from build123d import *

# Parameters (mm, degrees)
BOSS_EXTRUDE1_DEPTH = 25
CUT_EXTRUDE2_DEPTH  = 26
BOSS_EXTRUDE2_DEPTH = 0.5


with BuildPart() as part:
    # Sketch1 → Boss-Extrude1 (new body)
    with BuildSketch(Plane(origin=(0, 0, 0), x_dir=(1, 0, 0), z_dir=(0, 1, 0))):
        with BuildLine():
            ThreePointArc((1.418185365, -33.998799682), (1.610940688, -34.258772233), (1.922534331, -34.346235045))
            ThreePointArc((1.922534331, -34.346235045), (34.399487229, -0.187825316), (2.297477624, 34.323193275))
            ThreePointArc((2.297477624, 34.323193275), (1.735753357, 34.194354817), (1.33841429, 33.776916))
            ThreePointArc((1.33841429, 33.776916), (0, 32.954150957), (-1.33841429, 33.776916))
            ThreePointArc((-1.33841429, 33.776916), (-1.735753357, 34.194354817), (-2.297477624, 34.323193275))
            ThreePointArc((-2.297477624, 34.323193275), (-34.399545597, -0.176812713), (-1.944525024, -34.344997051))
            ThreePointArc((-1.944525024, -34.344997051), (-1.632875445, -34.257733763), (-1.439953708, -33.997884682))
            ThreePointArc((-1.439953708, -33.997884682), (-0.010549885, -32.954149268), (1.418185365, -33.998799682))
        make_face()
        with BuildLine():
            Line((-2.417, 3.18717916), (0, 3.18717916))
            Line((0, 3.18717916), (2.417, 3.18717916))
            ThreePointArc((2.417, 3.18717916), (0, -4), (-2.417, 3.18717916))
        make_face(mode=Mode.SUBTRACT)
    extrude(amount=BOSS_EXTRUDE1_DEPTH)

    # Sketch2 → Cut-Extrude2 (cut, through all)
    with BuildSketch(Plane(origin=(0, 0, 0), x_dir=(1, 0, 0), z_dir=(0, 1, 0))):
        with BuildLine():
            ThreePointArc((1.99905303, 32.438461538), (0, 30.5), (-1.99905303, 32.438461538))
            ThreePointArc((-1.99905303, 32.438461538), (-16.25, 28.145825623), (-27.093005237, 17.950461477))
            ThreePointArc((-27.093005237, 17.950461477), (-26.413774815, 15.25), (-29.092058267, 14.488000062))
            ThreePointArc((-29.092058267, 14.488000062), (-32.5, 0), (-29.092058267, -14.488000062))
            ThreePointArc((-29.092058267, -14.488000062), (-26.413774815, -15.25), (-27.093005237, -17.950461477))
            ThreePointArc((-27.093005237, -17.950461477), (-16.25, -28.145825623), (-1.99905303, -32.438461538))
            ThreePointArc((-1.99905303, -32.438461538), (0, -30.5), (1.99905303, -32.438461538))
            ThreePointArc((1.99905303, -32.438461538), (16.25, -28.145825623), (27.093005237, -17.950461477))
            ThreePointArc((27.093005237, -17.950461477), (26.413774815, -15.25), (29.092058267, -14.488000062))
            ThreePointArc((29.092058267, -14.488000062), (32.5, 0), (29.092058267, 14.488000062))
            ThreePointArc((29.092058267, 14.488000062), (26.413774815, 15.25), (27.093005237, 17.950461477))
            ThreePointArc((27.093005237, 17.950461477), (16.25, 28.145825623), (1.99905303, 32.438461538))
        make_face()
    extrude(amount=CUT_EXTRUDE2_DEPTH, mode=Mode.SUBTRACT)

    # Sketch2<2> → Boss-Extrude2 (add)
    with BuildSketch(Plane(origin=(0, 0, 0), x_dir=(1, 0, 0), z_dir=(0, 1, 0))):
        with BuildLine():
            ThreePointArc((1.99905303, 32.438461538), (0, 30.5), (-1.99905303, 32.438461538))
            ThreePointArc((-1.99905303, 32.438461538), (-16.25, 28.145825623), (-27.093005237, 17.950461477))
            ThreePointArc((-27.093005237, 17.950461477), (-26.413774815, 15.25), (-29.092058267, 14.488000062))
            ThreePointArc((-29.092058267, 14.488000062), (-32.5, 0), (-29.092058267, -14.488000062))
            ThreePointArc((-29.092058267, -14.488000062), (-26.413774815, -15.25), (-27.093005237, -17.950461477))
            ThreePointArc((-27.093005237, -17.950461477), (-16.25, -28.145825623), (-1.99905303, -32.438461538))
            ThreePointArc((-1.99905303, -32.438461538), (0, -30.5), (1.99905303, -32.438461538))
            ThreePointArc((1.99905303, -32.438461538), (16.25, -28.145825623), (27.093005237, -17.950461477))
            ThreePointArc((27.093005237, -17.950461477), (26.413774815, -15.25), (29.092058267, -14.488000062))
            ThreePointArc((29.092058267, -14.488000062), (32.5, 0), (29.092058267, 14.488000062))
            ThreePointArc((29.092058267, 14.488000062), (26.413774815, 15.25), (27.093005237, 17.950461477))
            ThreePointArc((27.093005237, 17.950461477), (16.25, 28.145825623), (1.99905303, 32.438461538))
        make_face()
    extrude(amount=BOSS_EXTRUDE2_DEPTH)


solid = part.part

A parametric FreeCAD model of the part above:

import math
import FreeCAD as App
import Part
import Sketcher
from FreeCAD import Vector

doc = App.newDocument("Part")
params = doc.addObject("Spreadsheet::Sheet", "Params")
for row, (alias, value) in enumerate([
    ("sketch1_radius", "1 mm"),
    ("sketch1_radius2", "4 mm"),
    ("sketch1_radius3", "0.5 mm"),
    ("sketch1_radius4", "34.4 mm"),
    ("sketch1_radius5", "1.5 mm"),
    ("pad1_length", "25 mm"),
    ("sketch2_radius", "2 mm"),
    ("sketch2_radius2", "32.5 mm"),
    ("sketch3_radius", "2 mm"),
    ("sketch3_radius2", "32.5 mm"),
    ("pad2_length", "0.5 mm"),
], start=1):
    params.set(f"A{row}", alias)
    params.set(f"B{row}", "=" + value)
    params.setAlias(f"B{row}", alias)

body = doc.addObject("PartDesign::Body", "Body")

# Sketch on XZ plane
sketch1 = body.newObject("Sketcher::SketchObject", "Sketch")
sketch1.AttachmentSupport = (doc.getObject("XZ_Plane"), [""])
sketch1.MapMode = "FlatFace"
sketch1.addGeometry([
    Part.ArcOfCircle(Part.Circle(Vector(1.894591, 33.847017, 0), Vector(0, 0, 1), 0.5), math.radians(86.796206), math.radians(162.328068)),  # 0
    Part.ArcOfCircle(Part.Circle(Vector(0, 0, 0), Vector(0, 0, 1), 34.4), math.radians(-86.170528), math.radians(86.796206)),  # 1
    Part.ArcOfCircle(Part.Circle(Vector(2.23069, -33.325426, 0), Vector(0, 0, 1), 1), math.radians(-153.160681), math.radians(-86.170528)),  # 2
    Part.ArcOfCircle(Part.Circle(Vector(0, -34.454151, 0), Vector(0, 0, 1), 1.5), math.radians(26.839319), math.radians(153.160681)),  # 3
    Part.ArcOfCircle(Part.Circle(Vector(-2.23069, -33.325426, 0), Vector(0, 0, 1), 1), math.radians(-93.829472), math.radians(-26.839319)),  # 4
    Part.ArcOfCircle(Part.Circle(Vector(0, 0, 0), Vector(0, 0, 1), 34.4), math.radians(93.24048), math.radians(266.170528)),  # 5
    Part.ArcOfCircle(Part.Circle(Vector(-1.916262, 33.845797, 0), Vector(0, 0, 1), 0.5), math.radians(17.708617), math.radians(93.240479)),  # 6
    Part.ArcOfCircle(Part.Circle(Vector(-0.01103, 34.454149, 0), Vector(0, 0, 1), 1.5), math.radians(-162.291383), math.radians(-17.671932)),  # 7
    Part.ArcOfCircle(Part.Circle(Vector(0, 0, 0), Vector(0, 0, 1), 4), math.radians(-52.825108), math.radians(232.825108)),  # 8
    Part.LineSegment(Vector(-2.417, -3.187179, 0), Vector(2.417, -3.187179, 0)),  # 9
], False)
sketch1.addConstraint([
    Sketcher.Constraint("Tangent", 0, 1, 1, 2),
    Sketcher.Constraint("Tangent", 1, 1, 2, 2),
    Sketcher.Constraint("Tangent", 2, 1, 3, 1),
    Sketcher.Constraint("Tangent", 3, 2, 4, 2),
    Sketcher.Constraint("Tangent", 4, 1, 5, 2),
    Sketcher.Constraint("Tangent", 5, 1, 6, 2),
    Sketcher.Constraint("Tangent", 6, 1, 7, 1),
    Sketcher.Constraint("Tangent", 7, 2, 0, 2),
    Sketcher.Constraint("Coincident", 8, 1, 9, 2),
    Sketcher.Constraint("Coincident", 9, 1, 8, 2),
    Sketcher.Constraint("Horizontal", 9),
    Sketcher.Constraint("Coincident", 1, 3, -1, 1),
    Sketcher.Constraint("Coincident", 5, 3, -1, 1),
    Sketcher.Constraint("Coincident", 8, 3, -1, 1),
    Sketcher.Constraint("Equal", 2, 4),
    Sketcher.Constraint("Equal", 1, 5),
    Sketcher.Constraint("Equal", 0, 6),
    Sketcher.Constraint("Equal", 3, 7),
    Sketcher.Constraint("PointOnObject", 3, 3, -2),
    Sketcher.Constraint("Radius", 2, 1.0),
    Sketcher.Constraint("Radius", 8, 4.0),
    Sketcher.Constraint("Radius", 0, 0.5),
    Sketcher.Constraint("Radius", 1, 34.4),
    Sketcher.Constraint("Radius", 3, 1.5),
    Sketcher.Constraint("DistanceX", 9, 1, 9, 2, 4.834),
    Sketcher.Constraint("DistanceY", -1, 1, 7, 2, 33.9988),
    Sketcher.Constraint("DistanceX", 0, 3, 2, 3, 0.3361),
    Sketcher.Constraint("DistanceX", -1, 1, 0, 3, 1.894591),
])
sketch1.setExpression("Constraints[19]", "Params.sketch1_radius")
sketch1.setExpression("Constraints[20]", "Params.sketch1_radius2")
sketch1.setExpression("Constraints[21]", "Params.sketch1_radius3")
sketch1.setExpression("Constraints[22]", "Params.sketch1_radius4")
sketch1.setExpression("Constraints[23]", "Params.sketch1_radius5")
pad1 = body.newObject("PartDesign::Pad", "Pad")
pad1.Profile = sketch1
pad1.setExpression("Length", "Params.pad1_length")
pad1.Reversed = True

# Sketch on XZ plane
sketch2 = body.newObject("Sketcher::SketchObject", "Sketch001")
sketch2.AttachmentSupport = (doc.getObject("XZ_Plane"), [""])
sketch2.MapMode = "FlatFace"
sketch2.addGeometry([
    Part.ArcOfCircle(Part.Circle(Vector(0, -32.5, 0), Vector(0, 0, 1), 2), math.radians(1.763225), math.radians(178.236775)),  # 0
    Part.ArcOfCircle(Part.Circle(Vector(0, 0, 0), Vector(0, 0, 1), 32.5), math.radians(-146.473549), math.radians(-93.526451)),  # 1
    Part.ArcOfCircle(Part.Circle(Vector(-28.145826, -16.25, 0), Vector(0, 0, 1), 2), math.radians(-58.236775), math.radians(118.236775)),  # 2
    Part.ArcOfCircle(Part.Circle(Vector(0, 0, 0), Vector(0, 0, 1), 32.5), math.radians(153.526451), math.radians(206.473549)),  # 3
    Part.ArcOfCircle(Part.Circle(Vector(-28.145826, 16.25, 0), Vector(0, 0, 1), 2), math.radians(-118.236775), math.radians(58.236775)),  # 4
    Part.ArcOfCircle(Part.Circle(Vector(0, 0, 0), Vector(0, 0, 1), 32.5), math.radians(93.526451), math.radians(146.473549)),  # 5
    Part.ArcOfCircle(Part.Circle(Vector(0, 32.5, 0), Vector(0, 0, 1), 2), math.radians(-178.236775), math.radians(-1.763225)),  # 6
    Part.ArcOfCircle(Part.Circle(Vector(0, 0, 0), Vector(0, 0, 1), 32.5), math.radians(33.526451), math.radians(86.473549)),  # 7
    Part.ArcOfCircle(Part.Circle(Vector(28.145826, 16.25, 0), Vector(0, 0, 1), 2), math.radians(121.763225), math.radians(298.236775)),  # 8
    Part.ArcOfCircle(Part.Circle(Vector(0, 0, 0), Vector(0, 0, 1), 32.5), math.radians(-26.473549), math.radians(26.473549)),  # 9
    Part.ArcOfCircle(Part.Circle(Vector(28.145826, -16.25, 0), Vector(0, 0, 1), 2), math.radians(61.763225), math.radians(238.236775)),  # 10
    Part.ArcOfCircle(Part.Circle(Vector(0, 0, 0), Vector(0, 0, 1), 32.5), math.radians(-86.473549), math.radians(-33.526451)),  # 11
], False)
sketch2.addConstraint([
    Sketcher.Constraint("Coincident", 0, 2, 1, 2),
    Sketcher.Constraint("Coincident", 1, 1, 2, 1),
    Sketcher.Constraint("Coincident", 2, 2, 3, 2),
    Sketcher.Constraint("Coincident", 3, 1, 4, 1),
    Sketcher.Constraint("Coincident", 4, 2, 5, 2),
    Sketcher.Constraint("Coincident", 5, 1, 6, 1),
    Sketcher.Constraint("Coincident", 6, 2, 7, 2),
    Sketcher.Constraint("Coincident", 7, 1, 8, 1),
    Sketcher.Constraint("Coincident", 8, 2, 9, 2),
    Sketcher.Constraint("Coincident", 9, 1, 10, 1),
    Sketcher.Constraint("Coincident", 10, 2, 11, 2),
    Sketcher.Constraint("Coincident", 11, 1, 0, 1),
    Sketcher.Constraint("Coincident", 1, 3, -1, 1),
    Sketcher.Constraint("Coincident", 3, 3, -1, 1),
    Sketcher.Constraint("Coincident", 5, 3, -1, 1),
    Sketcher.Constraint("Coincident", 7, 3, -1, 1),
    Sketcher.Constraint("Coincident", 9, 3, -1, 1),
    Sketcher.Constraint("Coincident", 11, 3, -1, 1),
    Sketcher.Constraint("Equal", 0, 2),
    Sketcher.Constraint("Equal", 1, 3),
    Sketcher.Constraint("Equal", 2, 4),
    Sketcher.Constraint("Equal", 3, 5),
    Sketcher.Constraint("Equal", 4, 6),
    Sketcher.Constraint("Equal", 5, 7),
    Sketcher.Constraint("Equal", 6, 8),
    Sketcher.Constraint("Equal", 7, 9),
    Sketcher.Constraint("Equal", 8, 10),
    Sketcher.Constraint("Equal", 9, 11),
    Sketcher.Constraint("Symmetric", 0, 3, 6, 3, -1, 1),
    Sketcher.Constraint("Symmetric", 2, 3, 8, 3, -1, 1),
    Sketcher.Constraint("Symmetric", 4, 3, 10, 3, -1, 1),
    Sketcher.Constraint("Symmetric", 4, 3, 8, 3, -2),
    Sketcher.Constraint("PointOnObject", 0, 3, -2),
    Sketcher.Constraint("Radius", 0, 2.0),
    Sketcher.Constraint("Radius", 1, 32.5),
    Sketcher.Constraint("DistanceY", 0, 3, -1, 1, 32.5),
    Sketcher.Constraint("DistanceY", 2, 3, 4, 3, 32.5),
    Sketcher.Constraint("DistanceY", 2, 2, -1, 1, 14.488),
])
sketch2.setExpression("Constraints[33]", "Params.sketch2_radius")
sketch2.setExpression("Constraints[34]", "Params.sketch2_radius2")
pocket1 = body.newObject("PartDesign::Pocket", "Pocket")
pocket1.Profile = sketch2
pocket1.Type = "ThroughAll"

# Sketch on XZ plane
sketch3 = body.newObject("Sketcher::SketchObject", "Sketch002")
sketch3.AttachmentSupport = (doc.getObject("XZ_Plane"), [""])
sketch3.MapMode = "FlatFace"
sketch3.addGeometry([
    Part.ArcOfCircle(Part.Circle(Vector(0, -32.5, 0), Vector(0, 0, 1), 2), math.radians(1.763225), math.radians(178.236775)),  # 0
    Part.ArcOfCircle(Part.Circle(Vector(0, 0, 0), Vector(0, 0, 1), 32.5), math.radians(-146.473549), math.radians(-93.526451)),  # 1
    Part.ArcOfCircle(Part.Circle(Vector(-28.145826, -16.25, 0), Vector(0, 0, 1), 2), math.radians(-58.236775), math.radians(118.236775)),  # 2
    Part.ArcOfCircle(Part.Circle(Vector(0, 0, 0), Vector(0, 0, 1), 32.5), math.radians(153.526451), math.radians(206.473549)),  # 3
    Part.ArcOfCircle(Part.Circle(Vector(-28.145826, 16.25, 0), Vector(0, 0, 1), 2), math.radians(-118.236775), math.radians(58.236775)),  # 4
    Part.ArcOfCircle(Part.Circle(Vector(0, 0, 0), Vector(0, 0, 1), 32.5), math.radians(93.526451), math.radians(146.473549)),  # 5
    Part.ArcOfCircle(Part.Circle(Vector(0, 32.5, 0), Vector(0, 0, 1), 2), math.radians(-178.236775), math.radians(-1.763225)),  # 6
    Part.ArcOfCircle(Part.Circle(Vector(0, 0, 0), Vector(0, 0, 1), 32.5), math.radians(33.526451), math.radians(86.473549)),  # 7
    Part.ArcOfCircle(Part.Circle(Vector(28.145826, 16.25, 0), Vector(0, 0, 1), 2), math.radians(121.763225), math.radians(298.236775)),  # 8
    Part.ArcOfCircle(Part.Circle(Vector(0, 0, 0), Vector(0, 0, 1), 32.5), math.radians(-26.473549), math.radians(26.473549)),  # 9
    Part.ArcOfCircle(Part.Circle(Vector(28.145826, -16.25, 0), Vector(0, 0, 1), 2), math.radians(61.763225), math.radians(238.236775)),  # 10
    Part.ArcOfCircle(Part.Circle(Vector(0, 0, 0), Vector(0, 0, 1), 32.5), math.radians(-86.473549), math.radians(-33.526451)),  # 11
], False)
sketch3.addConstraint([
    Sketcher.Constraint("Coincident", 0, 2, 1, 2),
    Sketcher.Constraint("Coincident", 1, 1, 2, 1),
    Sketcher.Constraint("Coincident", 2, 2, 3, 2),
    Sketcher.Constraint("Coincident", 3, 1, 4, 1),
    Sketcher.Constraint("Coincident", 4, 2, 5, 2),
    Sketcher.Constraint("Coincident", 5, 1, 6, 1),
    Sketcher.Constraint("Coincident", 6, 2, 7, 2),
    Sketcher.Constraint("Coincident", 7, 1, 8, 1),
    Sketcher.Constraint("Coincident", 8, 2, 9, 2),
    Sketcher.Constraint("Coincident", 9, 1, 10, 1),
    Sketcher.Constraint("Coincident", 10, 2, 11, 2),
    Sketcher.Constraint("Coincident", 11, 1, 0, 1),
    Sketcher.Constraint("Coincident", 1, 3, -1, 1),
    Sketcher.Constraint("Coincident", 3, 3, -1, 1),
    Sketcher.Constraint("Coincident", 5, 3, -1, 1),
    Sketcher.Constraint("Coincident", 7, 3, -1, 1),
    Sketcher.Constraint("Coincident", 9, 3, -1, 1),
    Sketcher.Constraint("Coincident", 11, 3, -1, 1),
    Sketcher.Constraint("Equal", 0, 2),
    Sketcher.Constraint("Equal", 1, 3),
    Sketcher.Constraint("Equal", 2, 4),
    Sketcher.Constraint("Equal", 3, 5),
    Sketcher.Constraint("Equal", 4, 6),
    Sketcher.Constraint("Equal", 5, 7),
    Sketcher.Constraint("Equal", 6, 8),
    Sketcher.Constraint("Equal", 7, 9),
    Sketcher.Constraint("Equal", 8, 10),
    Sketcher.Constraint("Equal", 9, 11),
    Sketcher.Constraint("Symmetric", 0, 3, 6, 3, -1, 1),
    Sketcher.Constraint("Symmetric", 2, 3, 8, 3, -1, 1),
    Sketcher.Constraint("Symmetric", 4, 3, 10, 3, -1, 1),
    Sketcher.Constraint("Symmetric", 4, 3, 8, 3, -2),
    Sketcher.Constraint("PointOnObject", 0, 3, -2),
    Sketcher.Constraint("Radius", 0, 2.0),
    Sketcher.Constraint("Radius", 1, 32.5),
    Sketcher.Constraint("DistanceY", 0, 3, -1, 1, 32.5),
    Sketcher.Constraint("DistanceY", 2, 3, 4, 3, 32.5),
    Sketcher.Constraint("DistanceY", 2, 2, -1, 1, 14.488),
])
sketch3.setExpression("Constraints[33]", "Params.sketch3_radius")
sketch3.setExpression("Constraints[34]", "Params.sketch3_radius2")
pad2 = body.newObject("PartDesign::Pad", "Pad001")
pad2.Profile = sketch3
pad2.setExpression("Length", "Params.pad2_length")
pad2.Reversed = True

doc.recompute()
